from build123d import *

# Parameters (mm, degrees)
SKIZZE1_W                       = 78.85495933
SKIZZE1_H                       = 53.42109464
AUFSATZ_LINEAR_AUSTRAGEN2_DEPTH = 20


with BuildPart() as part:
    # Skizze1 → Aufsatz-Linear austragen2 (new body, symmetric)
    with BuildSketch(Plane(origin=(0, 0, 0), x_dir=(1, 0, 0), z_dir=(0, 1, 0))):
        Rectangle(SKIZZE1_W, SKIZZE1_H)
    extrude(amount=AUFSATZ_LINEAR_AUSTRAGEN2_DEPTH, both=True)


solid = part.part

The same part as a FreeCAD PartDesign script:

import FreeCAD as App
import Part
import Sketcher
Q = App.Units.Quantity

doc = App.newDocument("Part")
body = doc.addObject("PartDesign::Body", "Body")

sketch1 = body.newObject("Sketcher::SketchObject", "Sketch")
sketch1.AttachmentSupport = (doc.getObject("XZ_Plane"), [""])
sketch1.MapMode = "FlatFace"
sketch1.addGeometry(Part.LineSegment(App.Vector(-39, -27, 0), App.Vector(-39, 27, 0)), False)
sketch1.addGeometry(Part.LineSegment(App.Vector(-39, 27, 0), App.Vector(39, 27, 0)), False)
sketch1.addGeometry(Part.LineSegment(App.Vector(39, 27, 0), App.Vector(39, -27, 0)), False)
sketch1.addGeometry(Part.LineSegment(App.Vector(39, -27, 0), App.Vector(-39, -27, 0)), False)
sketch1.addConstraint(Sketcher.Constraint("Coincident", 0, 2, 1, 1))
sketch1.addConstraint(Sketcher.Constraint("Coincident", 1, 2, 2, 1))
sketch1.addConstraint(Sketcher.Constraint("Coincident", 2, 2, 3, 1))
sketch1.addConstraint(Sketcher.Constraint("Coincident", 3, 2, 0, 1))
sketch1.addConstraint(Sketcher.Constraint("Vertical", 0))
sketch1.addConstraint(Sketcher.Constraint("Horizontal", 1))
sketch1.addConstraint(Sketcher.Constraint("Vertical", 2))
sketch1.addConstraint(Sketcher.Constraint("Horizontal", 3))
sketch1.addConstraint(Sketcher.Constraint("Symmetric", 0, 2, 2, 2, -1, 1))
sketch1.addConstraint(Sketcher.Constraint("DistanceX", 1, 1, 1, 2, Q("78.854959 mm")))
sketch1.addConstraint(Sketcher.Constraint("DistanceY", 0, 1, 0, 2, Q("53.421095 mm")))
pad1 = body.newObject("PartDesign::Pad", "Pad")
pad1.Profile = sketch1
pad1.Length = 40
pad1.Midplane = True

doc.recompute()
